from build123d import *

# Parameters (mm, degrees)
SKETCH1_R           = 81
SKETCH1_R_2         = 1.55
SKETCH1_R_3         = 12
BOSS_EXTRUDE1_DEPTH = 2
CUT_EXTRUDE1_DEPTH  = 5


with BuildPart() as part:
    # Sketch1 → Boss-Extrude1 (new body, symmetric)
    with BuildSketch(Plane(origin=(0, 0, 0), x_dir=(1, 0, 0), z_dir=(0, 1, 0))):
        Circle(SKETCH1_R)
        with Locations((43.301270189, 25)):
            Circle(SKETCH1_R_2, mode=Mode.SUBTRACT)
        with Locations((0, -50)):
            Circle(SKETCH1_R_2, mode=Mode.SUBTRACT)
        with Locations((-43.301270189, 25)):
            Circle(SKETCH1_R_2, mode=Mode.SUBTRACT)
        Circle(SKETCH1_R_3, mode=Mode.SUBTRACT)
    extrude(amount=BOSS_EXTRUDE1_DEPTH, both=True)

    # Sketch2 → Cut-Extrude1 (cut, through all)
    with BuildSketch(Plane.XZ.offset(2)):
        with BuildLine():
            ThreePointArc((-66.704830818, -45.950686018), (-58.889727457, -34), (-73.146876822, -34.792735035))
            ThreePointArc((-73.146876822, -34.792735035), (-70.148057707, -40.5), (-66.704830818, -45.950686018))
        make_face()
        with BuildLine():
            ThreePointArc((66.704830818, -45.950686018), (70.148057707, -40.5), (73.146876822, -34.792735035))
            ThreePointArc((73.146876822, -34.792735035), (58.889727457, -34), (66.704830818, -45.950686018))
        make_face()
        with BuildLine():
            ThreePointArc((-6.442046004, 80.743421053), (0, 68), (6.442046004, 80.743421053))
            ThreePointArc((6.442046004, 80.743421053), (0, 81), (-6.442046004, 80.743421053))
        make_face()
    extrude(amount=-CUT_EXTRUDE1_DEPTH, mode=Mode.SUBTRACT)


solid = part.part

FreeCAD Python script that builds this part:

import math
import FreeCAD as App
import Part
import Sketcher
from FreeCAD import Vector
Q = App.Units.Quantity

doc = App.newDocument("Part")
params = doc.addObject("Spreadsheet::Sheet", "Params")
for row, (alias, value) in enumerate([
    ("sketch1_diameter", "162 mm"),
    ("sketch1_diameter2", "24 mm"),
    ("sketch1_diameter3", "3.1 mm"),
    ("pad1_length", "4 mm"),
    ("sketch2_radius", "8 mm"),
    ("sketch2_radius2", "81 mm"),
], start=1):
    params.set(f"A{row}", alias)
    params.set(f"B{row}", "=" + value)
    params.setAlias(f"B{row}", alias)

body = doc.addObject("PartDesign::Body", "Body")

# Sketch on XZ plane
sketch1 = body.newObject("Sketcher::SketchObject", "Sketch")
sketch1.AttachmentSupport = (doc.getObject("XZ_Plane"), [""])
sketch1.MapMode = "FlatFace"
sketch1.addGeometry([
    Part.Circle(Vector(0, 0, 0), Vector(0, 0, 1), 81),  # 0
    Part.Circle(Vector(0, 50, 0), Vector(0, 0, 1), 1.6),  # 1
    Part.Circle(Vector(-43.3, -25, 0), Vector(0, 0, 1), 1.6),  # 2
    Part.Circle(Vector(0, 0, 0), Vector(0, 0, 1), 12),  # 3
    Part.Circle(Vector(43.3, -25, 0), Vector(0, 0, 1), 1.6),  # 4
], False)
sketch1.addConstraint([
    Sketcher.Constraint("Coincident", 0, 3, -1, 1),
    Sketcher.Constraint("Coincident", 3, 3, -1, 1),
    Sketcher.Constraint("Equal", 1, 2),
    Sketcher.Constraint("Equal", 2, 4),
    Sketcher.Constraint("Symmetric", 2, 3, 4, 3, -2),
    Sketcher.Constraint("PointOnObject", 1, 3, -2),
    Sketcher.Constraint("Diameter", 0, Q("162 mm")),
    Sketcher.Constraint("Diameter", 3, Q("24 mm")),
    Sketcher.Constraint("Diameter", 1, Q("3.1 mm")),
    Sketcher.Constraint("DistanceY", -1, 1, 1, 3, Q("50 mm")),
    Sketcher.Constraint("DistanceY", 2, 3, -1, 1, Q("25 mm")),
    Sketcher.Constraint("DistanceX", 2, 3, -1, 1, Q("43.30127 mm")),
])
sketch1.setExpression("Constraints[6]", "Params.sketch1_diameter")
sketch1.setExpression("Constraints[7]", "Params.sketch1_diameter2")
sketch1.setExpression("Constraints[8]", "Params.sketch1_diameter3")
pad1 = body.newObject("PartDesign::Pad", "Pad")
pad1.Profile = sketch1
pad1.setExpression("Length", "Params.pad1_length")
pad1.Midplane = True

# Sketch on XZ plane
sketch2 = body.newObject("Sketcher::SketchObject", "Sketch001")
sketch2.AttachmentSupport = (doc.getObject("XZ_Plane"), [""])
sketch2.MapMode = "FlatFace"
sketch2.AttachmentOffset = App.Placement(Vector(0, 0, 2), App.Rotation())
sketch2.addGeometry([
    Part.ArcOfCircle(Part.Circle(Vector(-66, -38, 0), Vector(0, 0, 1), 8), math.radians(-96), math.radians(156)),  # 0
    Part.ArcOfCircle(Part.Circle(Vector(0, 0, 0), Vector(0, 0, 1), 81), math.radians(-154.56), math.radians(-145.44)),  # 1
    Part.ArcOfCircle(Part.Circle(Vector(0, 0, 0), Vector(0, 0, 1), 81), math.radians(-34.56), math.radians(-25.44)),  # 2
    Part.ArcOfCircle(Part.Circle(Vector(66, -38, 0), Vector(0, 0, 1), 8), math.radians(24), math.radians(276)),  # 3
    Part.ArcOfCircle(Part.Circle(Vector(0, 76, 0), Vector(0, 0, 1), 8), math.radians(144), math.radians(396)),  # 4
    Part.ArcOfCircle(Part.Circle(Vector(0, 0, 0), Vector(0, 0, 1), 81), math.radians(85.44), math.radians(94.56)),  # 5
], False)
sketch2.addConstraint([
    Sketcher.Constraint("Coincident", 0, 1, 1, 2),
    Sketcher.Constraint("Coincident", 1, 1, 0, 2),
    Sketcher.Constraint("Coincident", 2, 1, 3, 2),
    Sketcher.Constraint("Coincident", 3, 1, 2, 2),
    Sketcher.Constraint("Coincident", 4, 1, 5, 2),
    Sketcher.Constraint("Coincident", 5, 1, 4, 2),
    Sketcher.Constraint("Coincident", 1, 3, -1, 1),
    Sketcher.Constraint("Coincident", 2, 3, -1, 1),
    Sketcher.Constraint("Coincident", 5, 3, -1, 1),
    Sketcher.Constraint("Equal", 1, 2),
    Sketcher.Constraint("Equal", 0, 3),
    Sketcher.Constraint("Equal", 3, 4),
    Sketcher.Constraint("Equal", 2, 5),
    Sketcher.Constraint("Symmetric", 0, 3, 3, 3, -2),
    Sketcher.Constraint("PointOnObject", 4, 3, -2),
    Sketcher.Constraint("Radius", 0, Q("8 mm")),
    Sketcher.Constraint("Radius", 1, Q("81 mm")),
    Sketcher.Constraint("DistanceY", 0, 3, -1, 1, Q("38 mm")),
    Sketcher.Constraint("DistanceY", -1, 1, 4, 3, Q("76 mm")),
    Sketcher.Constraint("DistanceX", 0, 1, 0, 3, Q("0.8869 mm")),
])
sketch2.setExpression("Constraints[15]", "Params.sketch2_radius")
sketch2.setExpression("Constraints[16]", "Params.sketch2_radius2")
pocket1 = body.newObject("PartDesign::Pocket", "Pocket")
pocket1.Profile = sketch2
pocket1.Type = "ThroughAll"

doc.recompute()
